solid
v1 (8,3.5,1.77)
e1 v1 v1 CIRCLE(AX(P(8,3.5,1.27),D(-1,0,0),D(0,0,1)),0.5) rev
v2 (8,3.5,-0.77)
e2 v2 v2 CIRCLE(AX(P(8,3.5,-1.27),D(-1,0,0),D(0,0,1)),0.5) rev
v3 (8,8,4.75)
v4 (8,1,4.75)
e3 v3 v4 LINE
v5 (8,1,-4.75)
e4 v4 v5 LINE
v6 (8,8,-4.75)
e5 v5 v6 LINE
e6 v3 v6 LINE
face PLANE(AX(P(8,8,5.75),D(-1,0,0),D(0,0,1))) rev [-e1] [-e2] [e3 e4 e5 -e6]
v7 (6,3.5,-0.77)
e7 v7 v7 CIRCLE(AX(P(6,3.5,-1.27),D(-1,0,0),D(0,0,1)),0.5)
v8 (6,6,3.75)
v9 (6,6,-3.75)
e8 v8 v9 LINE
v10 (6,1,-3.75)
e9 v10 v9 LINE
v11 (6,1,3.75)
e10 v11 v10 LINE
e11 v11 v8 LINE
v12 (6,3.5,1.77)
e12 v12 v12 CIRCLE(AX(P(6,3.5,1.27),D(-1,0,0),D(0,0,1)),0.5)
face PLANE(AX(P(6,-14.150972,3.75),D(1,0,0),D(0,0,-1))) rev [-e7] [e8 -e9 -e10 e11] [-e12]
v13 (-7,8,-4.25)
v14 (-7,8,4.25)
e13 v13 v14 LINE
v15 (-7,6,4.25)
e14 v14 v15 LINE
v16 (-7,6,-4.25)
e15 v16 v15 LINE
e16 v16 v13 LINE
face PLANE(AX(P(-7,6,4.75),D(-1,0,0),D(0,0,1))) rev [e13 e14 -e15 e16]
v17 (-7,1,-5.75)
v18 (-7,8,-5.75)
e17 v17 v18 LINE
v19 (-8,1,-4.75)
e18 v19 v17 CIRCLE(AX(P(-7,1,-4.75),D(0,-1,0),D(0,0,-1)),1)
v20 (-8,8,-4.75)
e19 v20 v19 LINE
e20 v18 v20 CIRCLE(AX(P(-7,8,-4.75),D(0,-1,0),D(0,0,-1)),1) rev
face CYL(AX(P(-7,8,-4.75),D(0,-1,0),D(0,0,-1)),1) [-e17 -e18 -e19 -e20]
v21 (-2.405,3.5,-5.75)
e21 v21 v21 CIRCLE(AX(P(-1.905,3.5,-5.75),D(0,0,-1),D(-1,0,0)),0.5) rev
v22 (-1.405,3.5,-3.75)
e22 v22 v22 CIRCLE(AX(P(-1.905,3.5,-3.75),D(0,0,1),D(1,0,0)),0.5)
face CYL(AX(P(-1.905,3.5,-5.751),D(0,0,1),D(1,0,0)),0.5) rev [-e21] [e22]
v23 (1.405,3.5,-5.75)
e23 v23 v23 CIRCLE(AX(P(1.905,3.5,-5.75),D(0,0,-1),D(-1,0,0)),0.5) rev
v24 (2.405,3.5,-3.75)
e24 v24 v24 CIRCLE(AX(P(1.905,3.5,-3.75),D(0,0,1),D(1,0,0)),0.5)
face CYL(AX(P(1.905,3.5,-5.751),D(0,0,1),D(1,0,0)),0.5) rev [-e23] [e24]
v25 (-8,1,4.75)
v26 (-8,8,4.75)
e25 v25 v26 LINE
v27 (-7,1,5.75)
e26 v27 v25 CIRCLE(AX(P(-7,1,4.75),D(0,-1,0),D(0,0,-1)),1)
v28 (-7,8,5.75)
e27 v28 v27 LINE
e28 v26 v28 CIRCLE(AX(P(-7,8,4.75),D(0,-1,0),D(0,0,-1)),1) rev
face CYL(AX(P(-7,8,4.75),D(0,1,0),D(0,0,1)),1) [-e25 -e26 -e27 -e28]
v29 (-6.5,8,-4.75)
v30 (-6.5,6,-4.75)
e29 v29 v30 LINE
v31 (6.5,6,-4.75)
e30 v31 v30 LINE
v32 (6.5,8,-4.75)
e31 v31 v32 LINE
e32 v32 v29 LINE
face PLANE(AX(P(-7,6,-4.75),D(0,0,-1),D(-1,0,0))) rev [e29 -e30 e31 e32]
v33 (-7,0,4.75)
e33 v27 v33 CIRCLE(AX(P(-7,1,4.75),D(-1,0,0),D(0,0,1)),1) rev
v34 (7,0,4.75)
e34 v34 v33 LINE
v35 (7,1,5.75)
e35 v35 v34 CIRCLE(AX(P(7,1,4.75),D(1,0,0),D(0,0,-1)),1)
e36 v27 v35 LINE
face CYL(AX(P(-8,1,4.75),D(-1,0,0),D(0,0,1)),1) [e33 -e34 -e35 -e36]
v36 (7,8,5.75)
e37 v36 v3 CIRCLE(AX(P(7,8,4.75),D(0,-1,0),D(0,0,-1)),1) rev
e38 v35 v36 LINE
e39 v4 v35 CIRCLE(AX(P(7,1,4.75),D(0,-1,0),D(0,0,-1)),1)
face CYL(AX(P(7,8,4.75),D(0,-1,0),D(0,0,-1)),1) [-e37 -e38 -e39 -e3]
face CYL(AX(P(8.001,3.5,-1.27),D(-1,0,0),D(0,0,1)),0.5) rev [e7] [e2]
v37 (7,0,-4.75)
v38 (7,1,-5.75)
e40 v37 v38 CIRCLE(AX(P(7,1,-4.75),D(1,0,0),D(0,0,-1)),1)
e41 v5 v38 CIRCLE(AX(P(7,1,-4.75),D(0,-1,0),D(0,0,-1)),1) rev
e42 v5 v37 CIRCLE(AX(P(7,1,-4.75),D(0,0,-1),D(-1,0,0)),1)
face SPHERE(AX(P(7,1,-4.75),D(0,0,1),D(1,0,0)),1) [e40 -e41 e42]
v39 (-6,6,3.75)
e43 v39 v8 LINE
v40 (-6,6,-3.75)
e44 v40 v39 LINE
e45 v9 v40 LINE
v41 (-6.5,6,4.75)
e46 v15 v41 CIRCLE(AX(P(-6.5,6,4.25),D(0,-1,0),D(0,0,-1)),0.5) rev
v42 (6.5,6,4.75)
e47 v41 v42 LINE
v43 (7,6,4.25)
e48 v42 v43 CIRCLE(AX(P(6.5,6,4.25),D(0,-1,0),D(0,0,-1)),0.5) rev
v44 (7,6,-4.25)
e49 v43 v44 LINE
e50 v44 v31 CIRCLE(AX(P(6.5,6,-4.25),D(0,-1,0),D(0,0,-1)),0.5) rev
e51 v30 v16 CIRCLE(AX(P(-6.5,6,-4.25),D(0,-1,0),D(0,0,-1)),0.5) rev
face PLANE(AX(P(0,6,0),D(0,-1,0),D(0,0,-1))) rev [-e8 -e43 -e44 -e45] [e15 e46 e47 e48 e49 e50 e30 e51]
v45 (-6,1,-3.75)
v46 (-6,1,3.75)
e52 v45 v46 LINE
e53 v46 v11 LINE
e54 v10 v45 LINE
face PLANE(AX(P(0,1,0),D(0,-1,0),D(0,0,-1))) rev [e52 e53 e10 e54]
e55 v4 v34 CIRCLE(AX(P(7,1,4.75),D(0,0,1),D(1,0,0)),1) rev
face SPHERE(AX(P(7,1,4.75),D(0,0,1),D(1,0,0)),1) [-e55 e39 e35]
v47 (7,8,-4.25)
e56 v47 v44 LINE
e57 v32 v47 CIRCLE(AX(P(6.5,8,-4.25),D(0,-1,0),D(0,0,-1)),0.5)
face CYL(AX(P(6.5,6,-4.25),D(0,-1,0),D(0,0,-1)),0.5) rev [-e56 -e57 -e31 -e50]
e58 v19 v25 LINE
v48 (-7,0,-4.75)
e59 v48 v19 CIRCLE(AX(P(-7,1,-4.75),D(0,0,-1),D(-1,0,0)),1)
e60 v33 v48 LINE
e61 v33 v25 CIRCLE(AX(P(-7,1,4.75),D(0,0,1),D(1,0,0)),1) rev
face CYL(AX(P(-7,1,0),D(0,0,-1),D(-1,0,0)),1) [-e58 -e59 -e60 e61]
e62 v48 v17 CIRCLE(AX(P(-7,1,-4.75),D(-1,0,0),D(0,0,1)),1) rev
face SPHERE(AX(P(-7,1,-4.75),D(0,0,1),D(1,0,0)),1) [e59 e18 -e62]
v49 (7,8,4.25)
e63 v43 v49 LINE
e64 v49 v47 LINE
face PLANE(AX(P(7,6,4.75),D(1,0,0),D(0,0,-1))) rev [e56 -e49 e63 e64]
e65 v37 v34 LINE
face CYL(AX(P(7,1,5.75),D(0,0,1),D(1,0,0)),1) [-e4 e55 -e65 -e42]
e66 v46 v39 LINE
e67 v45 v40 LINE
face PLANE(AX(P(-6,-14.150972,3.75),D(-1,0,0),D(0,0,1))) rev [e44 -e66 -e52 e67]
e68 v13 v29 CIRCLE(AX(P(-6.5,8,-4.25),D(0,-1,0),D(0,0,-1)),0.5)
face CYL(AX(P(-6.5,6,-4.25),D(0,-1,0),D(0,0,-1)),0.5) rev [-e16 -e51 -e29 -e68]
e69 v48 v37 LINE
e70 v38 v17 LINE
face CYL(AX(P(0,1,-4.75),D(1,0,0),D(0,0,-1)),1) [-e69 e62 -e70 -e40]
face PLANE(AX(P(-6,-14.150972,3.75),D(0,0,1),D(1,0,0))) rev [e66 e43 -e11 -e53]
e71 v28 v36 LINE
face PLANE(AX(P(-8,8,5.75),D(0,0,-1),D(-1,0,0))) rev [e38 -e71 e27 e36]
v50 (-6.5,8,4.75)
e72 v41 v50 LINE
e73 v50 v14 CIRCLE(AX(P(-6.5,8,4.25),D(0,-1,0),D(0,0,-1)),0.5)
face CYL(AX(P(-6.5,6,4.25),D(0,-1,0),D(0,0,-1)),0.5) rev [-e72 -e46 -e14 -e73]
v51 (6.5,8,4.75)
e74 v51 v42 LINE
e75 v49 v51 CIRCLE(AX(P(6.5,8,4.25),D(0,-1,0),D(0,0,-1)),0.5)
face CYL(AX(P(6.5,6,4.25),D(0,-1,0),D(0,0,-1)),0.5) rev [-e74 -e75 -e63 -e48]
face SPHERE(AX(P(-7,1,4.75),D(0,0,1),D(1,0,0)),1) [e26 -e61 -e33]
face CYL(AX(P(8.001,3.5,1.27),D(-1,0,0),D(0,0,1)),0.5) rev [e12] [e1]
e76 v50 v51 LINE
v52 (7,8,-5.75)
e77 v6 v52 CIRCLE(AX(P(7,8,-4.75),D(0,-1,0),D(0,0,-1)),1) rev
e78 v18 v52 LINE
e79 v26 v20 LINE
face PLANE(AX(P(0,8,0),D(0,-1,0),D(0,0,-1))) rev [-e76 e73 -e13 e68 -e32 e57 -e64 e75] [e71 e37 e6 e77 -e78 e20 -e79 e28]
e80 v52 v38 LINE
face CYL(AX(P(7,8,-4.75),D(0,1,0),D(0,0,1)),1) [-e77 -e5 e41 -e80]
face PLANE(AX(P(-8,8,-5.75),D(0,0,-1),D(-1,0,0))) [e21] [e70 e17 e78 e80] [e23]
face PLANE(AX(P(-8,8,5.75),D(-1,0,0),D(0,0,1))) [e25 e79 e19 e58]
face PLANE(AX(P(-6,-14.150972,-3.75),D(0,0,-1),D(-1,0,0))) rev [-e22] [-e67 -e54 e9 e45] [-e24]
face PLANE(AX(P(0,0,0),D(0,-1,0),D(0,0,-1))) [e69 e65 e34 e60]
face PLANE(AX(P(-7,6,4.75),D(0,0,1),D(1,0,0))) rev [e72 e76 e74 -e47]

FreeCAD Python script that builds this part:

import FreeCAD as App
import Part
import Sketcher
Q = App.Units.Quantity


def edges_at(feature, points):
    """Names of the edges that pass closest to the given points."""
    edges = feature.Shape.Edges
    near = lambda p: min(range(len(edges)), key=lambda i: edges[i].distToShape(Part.Vertex(*p))[0])
    return sorted({f"Edge{near(p) + 1}" for p in points})

doc = App.newDocument("Part")
body = doc.addObject("PartDesign::Body", "Body")

# Sketch on XZ plane
sketch1 = doc.addObject("Sketcher::SketchObject", "Sketch")
body.addObject(sketch1)
sketch1.AttachmentSupport = (doc.XZ_Plane, [""])
sketch1.MapMode = "FlatFace"
sketch1.addGeometry([
    Part.LineSegment(App.Vector(-8, -6, 0), App.Vector(-8, 6, 0)),
    Part.LineSegment(App.Vector(-8, 6, 0), App.Vector(8, 6, 0)),
    Part.LineSegment(App.Vector(8, 6, 0), App.Vector(8, -6, 0)),
    Part.LineSegment(App.Vector(8, -6, 0), App.Vector(-8, -6, 0)),
], False)
sketch1.addConstraint([
    Sketcher.Constraint("Coincident", 0, 2, 1, 1),
    Sketcher.Constraint("Coincident", 1, 2, 2, 1),
    Sketcher.Constraint("Coincident", 2, 2, 3, 1),
    Sketcher.Constraint("Coincident", 3, 2, 0, 1),
    Sketcher.Constraint("Vertical", 0),
    Sketcher.Constraint("Horizontal", 1),
    Sketcher.Constraint("Vertical", 2),
    Sketcher.Constraint("Horizontal", 3),
    Sketcher.Constraint("Symmetric", 0, 2, 2, 2, -1, 1),
    Sketcher.Constraint("DistanceX", 1, 1, 1, 2, Q("16 mm")),
    Sketcher.Constraint("DistanceY", 0, 1, 0, 2, Q("11.5 mm")),
])
pad1 = doc.addObject("PartDesign::Pad", "Pad")
body.addObject(pad1)
pad1.Profile = sketch1
pad1.Length = 8
pad1.Reversed = True

# Sketch on XZ plane
sketch2 = doc.addObject("Sketcher::SketchObject", "Sketch001")
body.addObject(sketch2)
sketch2.AttachmentSupport = (doc.XZ_Plane, [""])
sketch2.MapMode = "FlatFace"
sketch2.AttachmentOffset = App.Placement(App.Vector(0, 0, -8), App.Rotation())
sketch2.addGeometry([
    Part.LineSegment(App.Vector(-7, -5, 0), App.Vector(-7, 5, 0)),
    Part.LineSegment(App.Vector(-7, 5, 0), App.Vector(7, 5, 0)),
    Part.LineSegment(App.Vector(7, 5, 0), App.Vector(7, -5, 0)),
    Part.LineSegment(App.Vector(7, -5, 0), App.Vector(-7, -5, 0)),
], False)
sketch2.addConstraint([
    Sketcher.Constraint("Coincident", 0, 2, 1, 1),
    Sketcher.Constraint("Coincident", 1, 2, 2, 1),
    Sketcher.Constraint("Coincident", 2, 2, 3, 1),
    Sketcher.Constraint("Coincident", 3, 2, 0, 1),
    Sketcher.Constraint("Vertical", 0),
    Sketcher.Constraint("Horizontal", 1),
    Sketcher.Constraint("Vertical", 2),
    Sketcher.Constraint("Horizontal", 3),
    Sketcher.Constraint("Symmetric", 0, 2, 2, 2, -1, 1),
    Sketcher.Constraint("DistanceX", 1, 1, 1, 2, Q("14 mm")),
    Sketcher.Constraint("DistanceY", 0, 1, 0, 2, Q("9.5 mm")),
])
pocket1 = doc.addObject("PartDesign::Pocket", "Pocket")
body.addObject(pocket1)
pocket1.Profile = sketch2
pocket1.Length = 2
pocket1.Reversed = True

# Sketch on XZ plane
sketch3 = doc.addObject("Sketcher::SketchObject", "Sketch002")
body.addObject(sketch3)
sketch3.AttachmentSupport = (doc.XZ_Plane, [""])
sketch3.MapMode = "FlatFace"
sketch3.AttachmentOffset = App.Placement(App.Vector(0, 0, -6), App.Rotation())
sketch3.addGeometry([
    Part.LineSegment(App.Vector(-6, -4, 0), App.Vector(-6, 4, 0)),
    Part.LineSegment(App.Vector(-6, 4, 0), App.Vector(6, 4, 0)),
    Part.LineSegment(App.Vector(6, 4, 0), App.Vector(6, -4, 0)),
    Part.LineSegment(App.Vector(6, -4, 0), App.Vector(-6, -4, 0)),
], False)
sketch3.addConstraint([
    Sketcher.Constraint("Coincident", 0, 2, 1, 1),
    Sketcher.Constraint("Coincident", 1, 2, 2, 1),
    Sketcher.Constraint("Coincident", 2, 2, 3, 1),
    Sketcher.Constraint("Coincident", 3, 2, 0, 1),
    Sketcher.Constraint("Vertical", 0),
    Sketcher.Constraint("Horizontal", 1),
    Sketcher.Constraint("Vertical", 2),
    Sketcher.Constraint("Horizontal", 3),
    Sketcher.Constraint("Symmetric", 0, 2, 2, 2, -1, 1),
    Sketcher.Constraint("DistanceX", 1, 1, 1, 2, Q("12 mm")),
    Sketcher.Constraint("DistanceY", 0, 1, 0, 2, Q("7.5 mm")),
])
pocket2 = doc.addObject("PartDesign::Pocket", "Pocket001")
body.addObject(pocket2)
pocket2.Profile = sketch3
pocket2.Length = 5
pocket2.Reversed = True
doc.recompute()

fillet = doc.addObject("PartDesign::Fillet", "Fillet")
body.addObject(fillet)
fillet.Base = (pocket2, edges_at(pocket2, [
    (0, 0, 5.75),
    (8, 0, 0),
    (0, 0, -5.75),
    (-8, 0, 0),
    (-8, 4, 5.75),
    (8, 4, 5.75),
    (8, 4, -5.75),
    (-8, 4, -5.75),
]))
fillet.Radius = 1
doc.recompute()

fillet2 = doc.addObject("PartDesign::Fillet", "Fillet001")
body.addObject(fillet2)
fillet2.Base = (fillet, edges_at(fillet, [
    (7, 7, -4.75),
    (7, 7, 4.75),
    (-7, 7, 4.75),
    (-7, 7, -4.75),
]))
fillet2.Radius = 0.5

# Sketch on YZ plane
sketch4 = doc.addObject("Sketcher::SketchObject", "Sketch003")
body.addObject(sketch4)
sketch4.AttachmentSupport = (doc.YZ_Plane, [""])
sketch4.MapMode = "FlatFace"
sketch4.AttachmentOffset = App.Placement(App.Vector(0, 0, 6), App.Rotation())
sketch4.addGeometry(Part.Circle(App.Vector(3.5, -1.3, 0), App.Vector(0, 0, 1), 0.5), False)
sketch4.addConstraint([
    Sketcher.Constraint("Diameter", 0, Q("1 mm")),
    Sketcher.Constraint("DistanceX", -1, 1, 0, 3, Q("3.5 mm")),
    Sketcher.Constraint("DistanceY", 0, 3, -1, 1, Q("1.27 mm")),
])
pocket3 = doc.addObject("PartDesign::Pocket", "Pocket002")
body.addObject(pocket3)
pocket3.Profile = sketch4
pocket3.Type = "UpToFirst"
pocket3.Reversed = True

# Sketch on YZ plane
sketch5 = doc.addObject("Sketcher::SketchObject", "Sketch004")
body.addObject(sketch5)
sketch5.AttachmentSupport = (doc.YZ_Plane, [""])
sketch5.MapMode = "FlatFace"
sketch5.AttachmentOffset = App.Placement(App.Vector(0, 0, 6), App.Rotation())
sketch5.addGeometry(Part.Circle(App.Vector(3.5, 1.3, 0), App.Vector(0, 0, 1), 0.5), False)
sketch5.addConstraint([
    Sketcher.Constraint("Diameter", 0, Q("1 mm")),
    Sketcher.Constraint("DistanceX", -1, 1, 0, 3, Q("3.5 mm")),
    Sketcher.Constraint("DistanceY", -1, 1, 0, 3, Q("1.27 mm")),
])
pocket4 = doc.addObject("PartDesign::Pocket", "Pocket003")
body.addObject(pocket4)
pocket4.Profile = sketch5
pocket4.Type = "UpToFirst"
pocket4.Reversed = True

# Sketch on XY plane
sketch6 = doc.addObject("Sketcher::SketchObject", "Sketch005")
body.addObject(sketch6)
sketch6.AttachmentSupport = (doc.XY_Plane, [""])
sketch6.MapMode = "FlatFace"
sketch6.AttachmentOffset = App.Placement(App.Vector(0, 0, -3.75), App.Rotation())
sketch6.addGeometry(Part.Circle(App.Vector(1.9, 3.5, 0), App.Vector(0, 0, 1), 0.5), False)
sketch6.addConstraint([
    Sketcher.Constraint("Diameter", 0, Q("1 mm")),
    Sketcher.Constraint("DistanceY", -1, 1, 0, 3, Q("3.5 mm")),
    Sketcher.Constraint("DistanceX", -1, 1, 0, 3, Q("1.905 mm")),
])
pocket5 = doc.addObject("PartDesign::Pocket", "Pocket004")
body.addObject(pocket5)
pocket5.Profile = sketch6
pocket5.Type = "UpToFirst"

# Sketch on XY plane
sketch7 = doc.addObject("Sketcher::SketchObject", "Sketch006")
body.addObject(sketch7)
sketch7.AttachmentSupport = (doc.XY_Plane, [""])
sketch7.MapMode = "FlatFace"
sketch7.AttachmentOffset = App.Placement(App.Vector(0, 0, -3.75), App.Rotation())
sketch7.addGeometry(Part.Circle(App.Vector(-1.9, 3.5, 0), App.Vector(0, 0, 1), 0.5), False)
sketch7.addConstraint([
    Sketcher.Constraint("Diameter", 0, Q("1 mm")),
    Sketcher.Constraint("DistanceY", -1, 1, 0, 3, Q("3.5 mm")),
    Sketcher.Constraint("DistanceX", 0, 3, -1, 1, Q("1.905 mm")),
])
pocket6 = doc.addObject("PartDesign::Pocket", "Pocket005")
body.addObject(pocket6)
pocket6.Profile = sketch7
pocket6.Type = "UpToFirst"

doc.recompute()
